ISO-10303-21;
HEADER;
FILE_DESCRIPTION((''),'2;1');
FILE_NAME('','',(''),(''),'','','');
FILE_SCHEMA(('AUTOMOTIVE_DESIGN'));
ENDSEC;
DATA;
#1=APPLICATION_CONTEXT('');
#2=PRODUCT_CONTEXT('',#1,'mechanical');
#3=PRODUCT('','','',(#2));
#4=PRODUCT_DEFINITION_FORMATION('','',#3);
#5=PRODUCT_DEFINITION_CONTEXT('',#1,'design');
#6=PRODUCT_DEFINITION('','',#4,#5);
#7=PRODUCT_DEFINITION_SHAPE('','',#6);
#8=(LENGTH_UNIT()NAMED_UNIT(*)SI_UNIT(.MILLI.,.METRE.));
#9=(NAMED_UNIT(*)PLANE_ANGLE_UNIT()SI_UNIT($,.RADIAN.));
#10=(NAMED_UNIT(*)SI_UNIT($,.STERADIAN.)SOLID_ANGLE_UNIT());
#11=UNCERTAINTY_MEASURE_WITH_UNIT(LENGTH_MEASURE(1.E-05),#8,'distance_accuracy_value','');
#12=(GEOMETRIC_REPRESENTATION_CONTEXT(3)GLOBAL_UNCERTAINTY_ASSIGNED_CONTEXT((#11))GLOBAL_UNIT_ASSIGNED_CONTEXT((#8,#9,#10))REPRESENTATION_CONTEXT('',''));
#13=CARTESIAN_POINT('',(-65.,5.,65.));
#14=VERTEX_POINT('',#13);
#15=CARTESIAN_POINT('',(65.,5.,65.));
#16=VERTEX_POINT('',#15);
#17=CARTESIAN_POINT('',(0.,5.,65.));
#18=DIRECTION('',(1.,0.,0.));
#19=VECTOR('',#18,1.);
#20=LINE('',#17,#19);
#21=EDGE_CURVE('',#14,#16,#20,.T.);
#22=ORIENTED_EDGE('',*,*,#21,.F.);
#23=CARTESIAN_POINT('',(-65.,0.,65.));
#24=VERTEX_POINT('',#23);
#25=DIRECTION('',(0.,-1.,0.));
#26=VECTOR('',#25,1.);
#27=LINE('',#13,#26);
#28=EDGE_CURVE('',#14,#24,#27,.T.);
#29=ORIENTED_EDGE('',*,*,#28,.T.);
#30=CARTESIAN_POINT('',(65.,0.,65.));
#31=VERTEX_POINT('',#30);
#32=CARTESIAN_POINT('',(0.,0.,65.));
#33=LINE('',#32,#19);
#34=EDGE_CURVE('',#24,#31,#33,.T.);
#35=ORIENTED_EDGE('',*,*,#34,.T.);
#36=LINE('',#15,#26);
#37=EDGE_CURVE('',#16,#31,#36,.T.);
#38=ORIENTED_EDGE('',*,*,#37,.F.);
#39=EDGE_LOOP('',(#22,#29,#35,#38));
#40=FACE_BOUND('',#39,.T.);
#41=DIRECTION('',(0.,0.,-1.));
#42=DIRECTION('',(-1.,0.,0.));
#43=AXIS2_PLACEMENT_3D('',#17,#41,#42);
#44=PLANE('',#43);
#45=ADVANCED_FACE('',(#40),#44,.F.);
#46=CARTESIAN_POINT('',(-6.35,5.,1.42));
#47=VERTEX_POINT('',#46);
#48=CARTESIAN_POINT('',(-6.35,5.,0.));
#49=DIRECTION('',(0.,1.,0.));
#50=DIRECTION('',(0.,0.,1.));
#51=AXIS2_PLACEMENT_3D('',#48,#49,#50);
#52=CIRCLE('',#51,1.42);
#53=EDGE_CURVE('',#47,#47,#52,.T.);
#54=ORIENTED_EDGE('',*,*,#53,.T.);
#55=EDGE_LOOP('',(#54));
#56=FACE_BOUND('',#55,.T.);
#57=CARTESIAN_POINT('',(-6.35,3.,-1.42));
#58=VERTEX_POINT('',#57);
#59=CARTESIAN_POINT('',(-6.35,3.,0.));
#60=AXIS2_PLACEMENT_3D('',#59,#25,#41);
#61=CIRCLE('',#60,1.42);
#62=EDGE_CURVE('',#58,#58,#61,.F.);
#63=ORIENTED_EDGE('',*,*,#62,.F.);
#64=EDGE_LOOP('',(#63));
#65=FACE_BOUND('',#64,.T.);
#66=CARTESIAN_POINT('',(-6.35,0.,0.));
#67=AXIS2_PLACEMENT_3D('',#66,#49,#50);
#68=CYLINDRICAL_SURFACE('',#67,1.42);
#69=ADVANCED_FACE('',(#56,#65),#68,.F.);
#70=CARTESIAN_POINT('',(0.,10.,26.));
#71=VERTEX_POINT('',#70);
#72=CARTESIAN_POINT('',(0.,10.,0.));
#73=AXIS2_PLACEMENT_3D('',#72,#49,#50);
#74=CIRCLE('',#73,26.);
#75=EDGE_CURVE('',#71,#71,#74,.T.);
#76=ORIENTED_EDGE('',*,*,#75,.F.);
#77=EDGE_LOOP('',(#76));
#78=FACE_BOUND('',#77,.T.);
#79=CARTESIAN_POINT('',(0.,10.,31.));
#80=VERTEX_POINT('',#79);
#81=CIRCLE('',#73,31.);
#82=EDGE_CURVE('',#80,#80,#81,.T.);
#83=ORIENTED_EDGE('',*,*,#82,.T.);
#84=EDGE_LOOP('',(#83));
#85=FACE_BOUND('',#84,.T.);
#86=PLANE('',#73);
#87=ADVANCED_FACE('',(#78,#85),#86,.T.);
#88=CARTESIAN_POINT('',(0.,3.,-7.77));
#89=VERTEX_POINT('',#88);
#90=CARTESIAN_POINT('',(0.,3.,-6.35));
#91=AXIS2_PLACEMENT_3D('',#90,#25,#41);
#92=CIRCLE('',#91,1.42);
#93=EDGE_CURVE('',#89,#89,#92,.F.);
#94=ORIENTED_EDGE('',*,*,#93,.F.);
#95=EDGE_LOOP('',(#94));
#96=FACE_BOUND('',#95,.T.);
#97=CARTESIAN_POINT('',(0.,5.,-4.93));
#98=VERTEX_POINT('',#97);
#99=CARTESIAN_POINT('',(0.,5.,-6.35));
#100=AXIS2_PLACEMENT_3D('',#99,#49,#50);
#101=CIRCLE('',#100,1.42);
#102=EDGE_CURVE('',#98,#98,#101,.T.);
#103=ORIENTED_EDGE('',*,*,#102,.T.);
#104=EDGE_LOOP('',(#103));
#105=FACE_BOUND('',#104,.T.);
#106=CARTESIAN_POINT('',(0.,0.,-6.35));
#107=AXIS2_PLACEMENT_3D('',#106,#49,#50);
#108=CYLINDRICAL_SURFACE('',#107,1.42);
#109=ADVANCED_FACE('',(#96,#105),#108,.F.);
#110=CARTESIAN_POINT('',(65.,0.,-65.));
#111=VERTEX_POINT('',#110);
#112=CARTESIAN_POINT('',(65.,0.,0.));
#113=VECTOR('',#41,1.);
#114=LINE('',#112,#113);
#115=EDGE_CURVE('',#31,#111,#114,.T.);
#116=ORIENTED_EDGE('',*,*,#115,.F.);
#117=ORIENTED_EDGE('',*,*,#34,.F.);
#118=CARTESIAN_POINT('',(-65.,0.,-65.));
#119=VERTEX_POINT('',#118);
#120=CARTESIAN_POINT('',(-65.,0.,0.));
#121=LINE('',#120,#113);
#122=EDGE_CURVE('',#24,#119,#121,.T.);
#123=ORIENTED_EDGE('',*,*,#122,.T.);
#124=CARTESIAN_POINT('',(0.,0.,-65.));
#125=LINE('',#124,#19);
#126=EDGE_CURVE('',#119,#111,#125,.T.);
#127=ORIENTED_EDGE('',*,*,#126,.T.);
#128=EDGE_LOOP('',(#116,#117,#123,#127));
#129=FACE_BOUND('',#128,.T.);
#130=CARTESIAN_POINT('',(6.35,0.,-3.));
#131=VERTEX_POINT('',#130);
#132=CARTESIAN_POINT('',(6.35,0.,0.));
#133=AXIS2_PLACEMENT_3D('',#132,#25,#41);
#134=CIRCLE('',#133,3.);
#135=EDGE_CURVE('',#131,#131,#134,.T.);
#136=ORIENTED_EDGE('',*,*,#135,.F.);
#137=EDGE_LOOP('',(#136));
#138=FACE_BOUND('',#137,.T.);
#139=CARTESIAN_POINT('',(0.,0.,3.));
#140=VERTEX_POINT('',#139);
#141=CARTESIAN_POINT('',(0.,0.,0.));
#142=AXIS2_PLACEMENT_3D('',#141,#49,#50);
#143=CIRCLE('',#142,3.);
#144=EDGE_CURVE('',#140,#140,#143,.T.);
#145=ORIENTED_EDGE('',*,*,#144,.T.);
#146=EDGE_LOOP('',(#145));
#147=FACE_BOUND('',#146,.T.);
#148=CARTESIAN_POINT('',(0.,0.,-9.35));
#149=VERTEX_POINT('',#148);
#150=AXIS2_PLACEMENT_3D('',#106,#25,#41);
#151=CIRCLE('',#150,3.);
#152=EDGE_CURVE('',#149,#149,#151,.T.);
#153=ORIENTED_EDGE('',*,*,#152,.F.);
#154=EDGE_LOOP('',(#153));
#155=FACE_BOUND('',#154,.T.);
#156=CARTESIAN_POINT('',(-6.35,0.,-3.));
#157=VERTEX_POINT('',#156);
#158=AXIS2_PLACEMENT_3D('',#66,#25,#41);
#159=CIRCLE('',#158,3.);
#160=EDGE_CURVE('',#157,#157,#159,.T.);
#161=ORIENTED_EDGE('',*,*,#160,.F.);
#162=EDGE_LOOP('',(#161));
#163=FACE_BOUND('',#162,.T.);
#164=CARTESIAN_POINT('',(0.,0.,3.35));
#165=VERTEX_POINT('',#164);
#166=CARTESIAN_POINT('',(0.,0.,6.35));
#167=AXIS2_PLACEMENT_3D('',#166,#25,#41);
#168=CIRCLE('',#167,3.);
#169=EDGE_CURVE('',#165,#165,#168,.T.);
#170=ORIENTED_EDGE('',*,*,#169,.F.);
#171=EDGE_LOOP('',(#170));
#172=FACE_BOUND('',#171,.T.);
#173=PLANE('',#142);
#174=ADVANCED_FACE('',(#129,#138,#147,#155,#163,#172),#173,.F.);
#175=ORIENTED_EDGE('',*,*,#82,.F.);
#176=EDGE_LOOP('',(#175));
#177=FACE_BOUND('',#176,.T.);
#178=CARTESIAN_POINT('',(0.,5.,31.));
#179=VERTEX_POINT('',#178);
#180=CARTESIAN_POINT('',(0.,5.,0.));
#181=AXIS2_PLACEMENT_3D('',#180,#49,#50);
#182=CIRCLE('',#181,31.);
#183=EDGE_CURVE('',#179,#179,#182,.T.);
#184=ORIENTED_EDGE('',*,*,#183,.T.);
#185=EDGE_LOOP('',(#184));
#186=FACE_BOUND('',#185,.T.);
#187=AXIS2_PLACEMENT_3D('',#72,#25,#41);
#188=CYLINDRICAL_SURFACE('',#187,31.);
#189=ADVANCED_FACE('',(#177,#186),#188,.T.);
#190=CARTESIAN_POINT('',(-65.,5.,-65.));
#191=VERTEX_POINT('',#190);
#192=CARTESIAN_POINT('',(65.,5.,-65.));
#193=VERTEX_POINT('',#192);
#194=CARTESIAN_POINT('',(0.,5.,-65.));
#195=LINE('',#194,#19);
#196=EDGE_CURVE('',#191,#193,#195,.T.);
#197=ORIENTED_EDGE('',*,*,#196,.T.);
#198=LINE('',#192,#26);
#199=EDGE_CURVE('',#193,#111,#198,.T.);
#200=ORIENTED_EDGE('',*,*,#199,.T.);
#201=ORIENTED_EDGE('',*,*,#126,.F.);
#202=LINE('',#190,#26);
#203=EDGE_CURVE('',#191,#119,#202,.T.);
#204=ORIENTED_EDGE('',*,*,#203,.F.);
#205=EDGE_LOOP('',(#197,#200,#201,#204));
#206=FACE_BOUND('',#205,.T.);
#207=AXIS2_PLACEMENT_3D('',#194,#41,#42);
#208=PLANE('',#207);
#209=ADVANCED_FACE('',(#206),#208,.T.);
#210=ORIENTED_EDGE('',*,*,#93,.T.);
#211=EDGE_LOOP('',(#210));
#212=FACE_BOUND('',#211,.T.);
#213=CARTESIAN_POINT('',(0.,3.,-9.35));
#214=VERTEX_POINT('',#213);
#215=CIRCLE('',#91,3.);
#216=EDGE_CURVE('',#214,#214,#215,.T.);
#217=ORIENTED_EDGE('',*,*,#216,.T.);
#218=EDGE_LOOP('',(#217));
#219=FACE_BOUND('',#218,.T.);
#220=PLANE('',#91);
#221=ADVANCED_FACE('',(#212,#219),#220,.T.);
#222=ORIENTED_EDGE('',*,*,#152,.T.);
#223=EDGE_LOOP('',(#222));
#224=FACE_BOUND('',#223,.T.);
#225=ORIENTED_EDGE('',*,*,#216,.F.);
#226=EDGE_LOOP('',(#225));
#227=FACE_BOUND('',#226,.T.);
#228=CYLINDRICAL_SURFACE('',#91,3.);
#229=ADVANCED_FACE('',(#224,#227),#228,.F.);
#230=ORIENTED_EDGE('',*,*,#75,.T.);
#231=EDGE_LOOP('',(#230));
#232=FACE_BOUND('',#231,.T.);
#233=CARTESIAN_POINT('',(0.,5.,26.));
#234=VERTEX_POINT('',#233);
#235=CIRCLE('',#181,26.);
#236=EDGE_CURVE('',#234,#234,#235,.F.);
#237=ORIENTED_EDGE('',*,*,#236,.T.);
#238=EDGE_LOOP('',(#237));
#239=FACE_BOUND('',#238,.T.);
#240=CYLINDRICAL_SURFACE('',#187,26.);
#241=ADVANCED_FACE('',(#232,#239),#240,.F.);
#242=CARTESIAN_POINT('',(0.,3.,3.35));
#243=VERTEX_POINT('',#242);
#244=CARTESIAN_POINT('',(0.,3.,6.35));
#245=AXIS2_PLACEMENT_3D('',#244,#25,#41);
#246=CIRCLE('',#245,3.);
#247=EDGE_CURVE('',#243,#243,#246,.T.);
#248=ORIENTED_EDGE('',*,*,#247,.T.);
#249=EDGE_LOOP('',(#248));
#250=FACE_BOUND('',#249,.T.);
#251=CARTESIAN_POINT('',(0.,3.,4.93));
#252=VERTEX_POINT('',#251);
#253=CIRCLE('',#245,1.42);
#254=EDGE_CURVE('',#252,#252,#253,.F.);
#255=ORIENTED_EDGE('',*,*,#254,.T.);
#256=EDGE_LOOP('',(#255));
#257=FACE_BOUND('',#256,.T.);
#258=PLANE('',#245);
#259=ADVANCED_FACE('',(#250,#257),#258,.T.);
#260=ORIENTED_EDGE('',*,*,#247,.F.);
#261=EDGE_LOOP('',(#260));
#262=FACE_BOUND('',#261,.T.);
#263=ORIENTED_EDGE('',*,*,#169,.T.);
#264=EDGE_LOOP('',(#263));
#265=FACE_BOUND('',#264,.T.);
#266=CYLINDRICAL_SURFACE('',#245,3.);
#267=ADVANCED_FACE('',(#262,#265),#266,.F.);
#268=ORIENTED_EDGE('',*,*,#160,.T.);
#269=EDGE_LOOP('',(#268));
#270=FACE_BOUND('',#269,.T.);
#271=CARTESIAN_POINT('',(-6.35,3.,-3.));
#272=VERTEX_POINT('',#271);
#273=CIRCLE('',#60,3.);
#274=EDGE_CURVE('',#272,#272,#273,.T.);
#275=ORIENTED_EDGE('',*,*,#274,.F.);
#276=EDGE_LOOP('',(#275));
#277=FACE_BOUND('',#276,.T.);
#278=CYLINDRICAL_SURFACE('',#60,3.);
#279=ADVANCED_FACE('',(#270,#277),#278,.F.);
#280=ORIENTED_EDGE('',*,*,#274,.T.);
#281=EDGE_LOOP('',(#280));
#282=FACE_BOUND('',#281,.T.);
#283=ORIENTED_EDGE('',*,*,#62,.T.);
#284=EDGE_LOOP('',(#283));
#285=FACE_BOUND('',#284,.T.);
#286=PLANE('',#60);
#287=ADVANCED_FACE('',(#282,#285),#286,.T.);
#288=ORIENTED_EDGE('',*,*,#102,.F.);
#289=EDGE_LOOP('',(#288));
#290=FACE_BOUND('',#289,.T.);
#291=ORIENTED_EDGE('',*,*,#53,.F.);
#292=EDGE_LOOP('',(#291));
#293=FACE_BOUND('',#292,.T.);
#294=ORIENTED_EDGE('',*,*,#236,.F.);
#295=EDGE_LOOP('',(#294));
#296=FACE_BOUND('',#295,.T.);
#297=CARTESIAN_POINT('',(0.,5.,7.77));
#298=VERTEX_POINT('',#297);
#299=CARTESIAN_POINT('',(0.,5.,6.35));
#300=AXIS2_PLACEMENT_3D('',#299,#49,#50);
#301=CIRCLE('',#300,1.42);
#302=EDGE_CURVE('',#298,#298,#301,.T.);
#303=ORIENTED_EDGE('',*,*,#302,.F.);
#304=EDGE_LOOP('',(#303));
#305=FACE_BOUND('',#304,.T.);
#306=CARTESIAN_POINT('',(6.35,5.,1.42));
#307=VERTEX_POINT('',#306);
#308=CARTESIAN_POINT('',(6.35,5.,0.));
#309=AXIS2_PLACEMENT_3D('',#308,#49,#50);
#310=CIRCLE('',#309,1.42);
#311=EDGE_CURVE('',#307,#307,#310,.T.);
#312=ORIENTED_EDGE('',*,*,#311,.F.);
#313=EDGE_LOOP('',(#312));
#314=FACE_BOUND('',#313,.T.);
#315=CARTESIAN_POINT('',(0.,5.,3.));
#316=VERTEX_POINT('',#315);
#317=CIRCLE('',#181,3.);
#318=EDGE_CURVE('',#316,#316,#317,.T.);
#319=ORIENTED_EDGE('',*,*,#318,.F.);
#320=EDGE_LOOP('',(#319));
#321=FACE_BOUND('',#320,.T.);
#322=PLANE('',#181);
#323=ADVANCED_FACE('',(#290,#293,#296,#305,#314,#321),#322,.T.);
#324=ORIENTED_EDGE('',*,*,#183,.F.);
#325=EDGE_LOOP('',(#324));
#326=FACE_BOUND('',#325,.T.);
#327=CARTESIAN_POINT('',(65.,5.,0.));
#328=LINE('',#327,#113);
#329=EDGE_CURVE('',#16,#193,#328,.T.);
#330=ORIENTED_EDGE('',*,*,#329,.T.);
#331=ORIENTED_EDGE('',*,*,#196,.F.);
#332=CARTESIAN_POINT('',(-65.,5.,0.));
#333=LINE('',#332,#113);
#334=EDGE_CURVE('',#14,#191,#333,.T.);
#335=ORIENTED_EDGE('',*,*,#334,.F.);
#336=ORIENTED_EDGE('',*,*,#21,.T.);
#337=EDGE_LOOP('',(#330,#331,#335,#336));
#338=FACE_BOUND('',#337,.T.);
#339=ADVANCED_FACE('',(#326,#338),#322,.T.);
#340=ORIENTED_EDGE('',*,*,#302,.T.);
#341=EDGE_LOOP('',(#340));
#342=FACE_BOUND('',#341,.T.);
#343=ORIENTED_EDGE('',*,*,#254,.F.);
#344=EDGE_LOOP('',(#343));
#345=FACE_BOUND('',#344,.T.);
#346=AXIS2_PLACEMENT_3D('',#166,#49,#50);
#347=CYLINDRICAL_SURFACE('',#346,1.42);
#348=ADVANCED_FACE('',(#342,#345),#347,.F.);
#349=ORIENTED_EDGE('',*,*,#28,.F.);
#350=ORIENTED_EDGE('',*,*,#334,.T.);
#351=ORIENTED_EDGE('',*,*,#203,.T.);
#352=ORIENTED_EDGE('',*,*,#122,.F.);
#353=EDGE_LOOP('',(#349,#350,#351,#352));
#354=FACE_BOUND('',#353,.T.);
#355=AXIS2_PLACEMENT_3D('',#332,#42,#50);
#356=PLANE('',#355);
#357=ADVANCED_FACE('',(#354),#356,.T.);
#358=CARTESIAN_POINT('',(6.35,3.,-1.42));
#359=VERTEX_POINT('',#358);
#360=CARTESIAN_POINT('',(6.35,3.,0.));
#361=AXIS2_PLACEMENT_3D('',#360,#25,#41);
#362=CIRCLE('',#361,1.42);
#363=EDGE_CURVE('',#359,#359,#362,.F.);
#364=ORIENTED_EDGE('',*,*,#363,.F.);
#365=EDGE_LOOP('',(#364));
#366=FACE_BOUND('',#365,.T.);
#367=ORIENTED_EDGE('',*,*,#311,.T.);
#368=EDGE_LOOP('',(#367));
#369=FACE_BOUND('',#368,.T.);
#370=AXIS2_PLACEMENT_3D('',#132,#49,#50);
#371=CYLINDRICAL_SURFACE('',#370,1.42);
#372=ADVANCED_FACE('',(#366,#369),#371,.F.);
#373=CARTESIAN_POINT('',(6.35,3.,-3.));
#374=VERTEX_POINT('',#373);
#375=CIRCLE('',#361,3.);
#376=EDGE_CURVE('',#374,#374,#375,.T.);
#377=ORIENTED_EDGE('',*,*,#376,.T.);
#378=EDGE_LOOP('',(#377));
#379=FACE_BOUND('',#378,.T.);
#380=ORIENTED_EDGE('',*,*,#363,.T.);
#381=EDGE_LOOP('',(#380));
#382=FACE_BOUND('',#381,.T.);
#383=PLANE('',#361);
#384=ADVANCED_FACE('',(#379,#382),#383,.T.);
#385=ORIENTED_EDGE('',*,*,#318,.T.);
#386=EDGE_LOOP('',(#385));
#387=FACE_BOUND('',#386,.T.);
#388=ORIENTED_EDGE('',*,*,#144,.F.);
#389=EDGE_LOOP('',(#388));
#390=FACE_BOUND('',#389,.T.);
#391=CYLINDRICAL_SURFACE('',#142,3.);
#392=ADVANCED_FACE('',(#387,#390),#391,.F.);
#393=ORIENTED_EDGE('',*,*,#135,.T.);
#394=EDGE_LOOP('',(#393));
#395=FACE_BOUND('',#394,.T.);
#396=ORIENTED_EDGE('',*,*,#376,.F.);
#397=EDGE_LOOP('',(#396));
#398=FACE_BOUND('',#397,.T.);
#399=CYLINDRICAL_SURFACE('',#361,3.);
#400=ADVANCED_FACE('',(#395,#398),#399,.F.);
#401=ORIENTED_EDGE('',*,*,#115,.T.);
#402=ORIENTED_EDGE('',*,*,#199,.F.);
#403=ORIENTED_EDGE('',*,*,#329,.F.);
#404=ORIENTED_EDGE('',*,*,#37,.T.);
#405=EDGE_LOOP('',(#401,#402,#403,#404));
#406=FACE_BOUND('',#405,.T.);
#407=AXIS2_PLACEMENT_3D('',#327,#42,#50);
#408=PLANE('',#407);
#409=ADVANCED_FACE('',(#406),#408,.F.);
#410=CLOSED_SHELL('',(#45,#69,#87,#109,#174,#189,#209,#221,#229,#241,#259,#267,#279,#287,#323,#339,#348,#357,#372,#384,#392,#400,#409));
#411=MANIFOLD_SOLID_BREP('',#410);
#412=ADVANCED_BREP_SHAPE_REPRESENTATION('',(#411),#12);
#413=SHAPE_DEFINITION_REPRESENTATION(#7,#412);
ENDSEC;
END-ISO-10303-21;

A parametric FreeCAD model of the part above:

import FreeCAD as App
import Part
import Sketcher
from FreeCAD import Vector
Q = App.Units.Quantity


def add_polygon(sketch, points):
    """Adds a closed chain of lines whose ends are joined by coincident constraints."""
    first, n = sketch.GeometryCount, len(points)
    for a, b in zip(points, points[1:] + points[:1]):
        sketch.addGeometry(Part.LineSegment(App.Vector(*a, 0), App.Vector(*b, 0)), False)
    for i in range(n):
        sketch.addConstraint(Sketcher.Constraint("Coincident", first + i, 2, first + (i + 1) % n, 1))

doc = App.newDocument("Part")
params = doc.addObject("Spreadsheet::Sheet", "Params")
for row, (alias, value) in enumerate([
    ("sketch1_width", "130 mm"),
    ("pad1_length", "5 mm"),
    ("sketch2_diameter", "62 mm"),
    ("sketch2_diameter2", "52 mm"),
    ("pad2_length", "5 mm"),
    ("sketch3_diameter", "6 mm"),
    ("sketch3_diameter2", "2.84 mm"),
    ("pocket1_length", "5 mm"),
    ("sketch4_diameter", "6 mm"),
    ("pocket2_length", "3 mm"),
], start=1):
    params.set(f"A{row}", alias)
    params.set(f"B{row}", "=" + value)
    params.setAlias(f"B{row}", alias)

body = doc.addObject("PartDesign::Body", "Body")

# Sketch on XZ plane
sketch1 = body.newObject("Sketcher::SketchObject", "Sketch")
sketch1.AttachmentSupport = (doc.getObject("XZ_Plane"), [""])
sketch1.MapMode = "FlatFace"
add_polygon(sketch1, [(-65, -65), (-65, 65), (65, 65), (65, -65)])  # lines 0-3
sketch1.addConstraint(Sketcher.Constraint("Vertical", 0))
sketch1.addConstraint(Sketcher.Constraint("Horizontal", 1))
sketch1.addConstraint(Sketcher.Constraint("Vertical", 2))
sketch1.addConstraint(Sketcher.Constraint("Horizontal", 3))
sketch1.addConstraint(Sketcher.Constraint("Symmetric", 0, 2, 2, 2, -1, 1))
sketch1.addConstraint(Sketcher.Constraint("Equal", 3, 0))
sketch1.addConstraint(Sketcher.Constraint("DistanceX", 1, 1, 1, 2, Q("130 mm")))
sketch1.setExpression("Constraints[10]", "Params.sketch1_width")
pad1 = body.newObject("PartDesign::Pad", "Pad")
pad1.Profile = sketch1
pad1.setExpression("Length", "Params.pad1_length")
pad1.Reversed = True

# Sketch on XZ plane
sketch2 = body.newObject("Sketcher::SketchObject", "Sketch001")
sketch2.AttachmentSupport = (doc.getObject("XZ_Plane"), [""])
sketch2.MapMode = "FlatFace"
sketch2.AttachmentOffset = App.Placement(Vector(0, 0, -5), App.Rotation())
sketch2.addGeometry(Part.Circle(Vector(0, 0, 0), Vector(0, 0, 1), 31), False)
sketch2.addGeometry(Part.Circle(Vector(0, 0, 0), Vector(0, 0, 1), 26), False)
sketch2.addConstraint(Sketcher.Constraint("Coincident", 0, 3, -1, 1))
sketch2.addConstraint(Sketcher.Constraint("Coincident", 1, 3, -1, 1))
sketch2.addConstraint(Sketcher.Constraint("Diameter", 0, Q("62 mm")))
sketch2.addConstraint(Sketcher.Constraint("Diameter", 1, Q("52 mm")))
sketch2.setExpression("Constraints[2]", "Params.sketch2_diameter")
sketch2.setExpression("Constraints[3]", "Params.sketch2_diameter2")
pad2 = body.newObject("PartDesign::Pad", "Pad001")
pad2.Profile = sketch2
pad2.setExpression("Length", "Params.pad2_length")
pad2.Reversed = True

# Sketch on XZ plane
sketch3 = body.newObject("Sketcher::SketchObject", "Sketch002")
sketch3.AttachmentSupport = (doc.getObject("XZ_Plane"), [""])
sketch3.MapMode = "FlatFace"
sketch3.AttachmentOffset = App.Placement(Vector(0, 0, -5), App.Rotation())
sketch3.addGeometry(Part.Circle(Vector(0, -6.3, 0), Vector(0, 0, 1), 1.4), False)
sketch3.addGeometry(Part.Circle(Vector(6.3, 0, 0), Vector(0, 0, 1), 1.4), False)
sketch3.addGeometry(Part.Circle(Vector(0, 6.3, 0), Vector(0, 0, 1), 1.4), False)
sketch3.addGeometry(Part.Circle(Vector(-6.3, 0, 0), Vector(0, 0, 1), 1.4), False)
sketch3.addGeometry(Part.Circle(Vector(0, 0, 0), Vector(0, 0, 1), 3), False)
sketch3.addConstraint(Sketcher.Constraint("Coincident", 4, 3, -1, 1))
sketch3.addConstraint(Sketcher.Constraint("Equal", 0, 1))
sketch3.addConstraint(Sketcher.Constraint("Equal", 1, 2))
sketch3.addConstraint(Sketcher.Constraint("Equal", 2, 3))
sketch3.addConstraint(Sketcher.Constraint("Symmetric", 0, 3, 2, 3, -1, 1))
sketch3.addConstraint(Sketcher.Constraint("Symmetric", 1, 3, 3, 3, -1, 1))
sketch3.addConstraint(Sketcher.Constraint("PointOnObject", 0, 3, -2))
sketch3.addConstraint(Sketcher.Constraint("PointOnObject", 1, 3, -1))
sketch3.addConstraint(Sketcher.Constraint("Diameter", 4, Q("6 mm")))
sketch3.addConstraint(Sketcher.Constraint("Diameter", 0, Q("2.84 mm")))
sketch3.addConstraint(Sketcher.Constraint("DistanceY", 0, 3, 2, 3, Q("12.7 mm")))
sketch3.addConstraint(Sketcher.Constraint("DistanceX", 3, 3, 1, 3, Q("12.7 mm")))
sketch3.setExpression("Constraints[8]", "Params.sketch3_diameter")
sketch3.setExpression("Constraints[9]", "Params.sketch3_diameter2")
pocket1 = body.newObject("PartDesign::Pocket", "Pocket")
pocket1.Profile = sketch3
pocket1.setExpression("Length", "Params.pocket1_length")
pocket1.Reversed = True

# Sketch on XZ plane
sketch4 = body.newObject("Sketcher::SketchObject", "Sketch003")
sketch4.AttachmentSupport = (doc.getObject("XZ_Plane"), [""])
sketch4.MapMode = "FlatFace"
sketch4.addGeometry(Part.Circle(Vector(6.3, 0, 0), Vector(0, 0, 1), 3), False)
sketch4.addGeometry(Part.Circle(Vector(0, -6.3, 0), Vector(0, 0, 1), 3), False)
sketch4.addGeometry(Part.Circle(Vector(-6.3, 0, 0), Vector(0, 0, 1), 3), False)
sketch4.addGeometry(Part.Circle(Vector(0, 6.3, 0), Vector(0, 0, 1), 3), False)
sketch4.addConstraint(Sketcher.Constraint("Equal", 0, 1))
sketch4.addConstraint(Sketcher.Constraint("Equal", 1, 2))
sketch4.addConstraint(Sketcher.Constraint("Equal", 2, 3))
sketch4.addConstraint(Sketcher.Constraint("Symmetric", 0, 3, 2, 3, -1, 1))
sketch4.addConstraint(Sketcher.Constraint("Symmetric", 1, 3, 3, 3, -1, 1))
sketch4.addConstraint(Sketcher.Constraint("PointOnObject", 0, 3, -1))
sketch4.addConstraint(Sketcher.Constraint("PointOnObject", 1, 3, -2))
sketch4.addConstraint(Sketcher.Constraint("Diameter", 0, Q("6 mm")))
sketch4.addConstraint(Sketcher.Constraint("DistanceX", 2, 3, 0, 3, Q("12.7 mm")))
sketch4.addConstraint(Sketcher.Constraint("DistanceY", 1, 3, 3, 3, Q("12.7 mm")))
sketch4.setExpression("Constraints[7]", "Params.sketch4_diameter")
pocket2 = body.newObject("PartDesign::Pocket", "Pocket001")
pocket2.Profile = sketch4
pocket2.setExpression("Length", "Params.pocket2_length")

doc.recompute()
